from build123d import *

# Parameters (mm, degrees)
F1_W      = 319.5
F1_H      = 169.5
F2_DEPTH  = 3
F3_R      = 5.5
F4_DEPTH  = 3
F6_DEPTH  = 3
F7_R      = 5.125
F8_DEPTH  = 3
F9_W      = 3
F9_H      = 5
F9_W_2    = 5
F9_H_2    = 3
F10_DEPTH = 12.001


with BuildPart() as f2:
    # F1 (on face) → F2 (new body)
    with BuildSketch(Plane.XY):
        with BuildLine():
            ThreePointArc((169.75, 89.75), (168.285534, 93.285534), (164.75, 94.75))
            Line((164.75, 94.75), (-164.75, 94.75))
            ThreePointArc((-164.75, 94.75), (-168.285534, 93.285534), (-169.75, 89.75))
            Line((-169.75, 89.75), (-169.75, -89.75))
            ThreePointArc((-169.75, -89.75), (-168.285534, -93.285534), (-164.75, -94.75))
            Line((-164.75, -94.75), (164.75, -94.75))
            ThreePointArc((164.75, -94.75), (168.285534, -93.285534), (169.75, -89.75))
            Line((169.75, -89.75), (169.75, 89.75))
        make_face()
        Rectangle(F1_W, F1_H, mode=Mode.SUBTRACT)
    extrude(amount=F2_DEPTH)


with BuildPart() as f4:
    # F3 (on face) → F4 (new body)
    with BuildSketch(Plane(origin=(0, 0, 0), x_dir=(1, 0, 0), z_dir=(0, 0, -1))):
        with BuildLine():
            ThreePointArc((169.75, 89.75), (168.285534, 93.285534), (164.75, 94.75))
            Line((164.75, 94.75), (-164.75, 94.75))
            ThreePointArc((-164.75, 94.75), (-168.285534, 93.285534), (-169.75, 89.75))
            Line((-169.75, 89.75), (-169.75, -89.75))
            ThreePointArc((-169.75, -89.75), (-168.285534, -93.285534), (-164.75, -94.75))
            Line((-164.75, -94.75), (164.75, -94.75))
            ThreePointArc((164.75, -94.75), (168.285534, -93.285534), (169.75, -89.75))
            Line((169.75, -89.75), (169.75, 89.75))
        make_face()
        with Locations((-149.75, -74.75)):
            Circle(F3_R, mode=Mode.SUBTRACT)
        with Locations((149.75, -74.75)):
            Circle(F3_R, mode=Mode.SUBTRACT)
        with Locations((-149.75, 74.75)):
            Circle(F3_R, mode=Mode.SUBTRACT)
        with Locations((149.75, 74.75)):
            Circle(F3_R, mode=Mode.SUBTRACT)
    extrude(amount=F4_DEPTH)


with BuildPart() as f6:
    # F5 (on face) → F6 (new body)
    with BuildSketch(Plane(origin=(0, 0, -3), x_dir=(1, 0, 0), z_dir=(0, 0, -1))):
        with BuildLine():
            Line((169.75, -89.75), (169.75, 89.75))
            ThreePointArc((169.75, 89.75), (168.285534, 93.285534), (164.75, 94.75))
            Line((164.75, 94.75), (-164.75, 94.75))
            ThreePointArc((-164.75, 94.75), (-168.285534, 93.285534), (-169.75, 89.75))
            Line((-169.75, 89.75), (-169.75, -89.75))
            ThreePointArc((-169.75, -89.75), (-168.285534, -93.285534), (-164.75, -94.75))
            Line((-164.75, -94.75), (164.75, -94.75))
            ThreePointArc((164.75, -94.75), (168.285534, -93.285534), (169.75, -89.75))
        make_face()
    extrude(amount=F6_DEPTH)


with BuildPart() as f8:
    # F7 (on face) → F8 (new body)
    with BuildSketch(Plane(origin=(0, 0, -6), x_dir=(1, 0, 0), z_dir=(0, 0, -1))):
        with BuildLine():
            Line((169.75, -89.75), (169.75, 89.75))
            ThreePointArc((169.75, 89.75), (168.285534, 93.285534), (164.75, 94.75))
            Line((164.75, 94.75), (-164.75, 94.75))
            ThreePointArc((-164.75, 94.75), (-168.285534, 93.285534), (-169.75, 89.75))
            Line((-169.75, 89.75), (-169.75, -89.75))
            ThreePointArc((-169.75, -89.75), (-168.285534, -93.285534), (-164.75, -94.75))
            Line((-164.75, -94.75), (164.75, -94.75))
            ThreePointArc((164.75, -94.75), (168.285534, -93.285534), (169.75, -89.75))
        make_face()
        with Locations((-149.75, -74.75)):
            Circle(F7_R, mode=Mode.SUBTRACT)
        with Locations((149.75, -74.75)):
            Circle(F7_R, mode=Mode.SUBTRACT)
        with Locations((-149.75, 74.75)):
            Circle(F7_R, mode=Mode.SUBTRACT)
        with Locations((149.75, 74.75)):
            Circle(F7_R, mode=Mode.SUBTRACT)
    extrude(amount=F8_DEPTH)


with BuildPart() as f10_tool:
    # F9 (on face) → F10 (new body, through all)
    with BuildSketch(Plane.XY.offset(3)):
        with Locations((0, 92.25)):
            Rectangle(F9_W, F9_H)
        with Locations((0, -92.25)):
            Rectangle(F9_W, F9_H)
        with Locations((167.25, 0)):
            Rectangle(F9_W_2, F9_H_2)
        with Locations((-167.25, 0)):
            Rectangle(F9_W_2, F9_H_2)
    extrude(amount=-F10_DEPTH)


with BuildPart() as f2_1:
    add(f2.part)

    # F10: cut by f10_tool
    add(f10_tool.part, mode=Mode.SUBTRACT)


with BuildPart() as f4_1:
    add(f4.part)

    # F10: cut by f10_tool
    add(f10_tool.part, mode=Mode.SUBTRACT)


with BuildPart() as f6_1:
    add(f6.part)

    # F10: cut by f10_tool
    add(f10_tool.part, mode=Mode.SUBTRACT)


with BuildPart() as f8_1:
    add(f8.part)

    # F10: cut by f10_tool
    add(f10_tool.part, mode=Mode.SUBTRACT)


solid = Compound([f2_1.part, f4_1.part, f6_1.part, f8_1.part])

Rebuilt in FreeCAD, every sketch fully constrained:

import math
import FreeCAD as App
import Part
import Sketcher

V = App.Vector


def add_polygon(sketch, points):
    """Adds a closed chain of lines whose ends are joined by coincident constraints."""
    first, n = sketch.GeometryCount, len(points)
    for a, b in zip(points, points[1:] + points[:1]):
        sketch.addGeometry(Part.LineSegment(App.Vector(*a, 0), App.Vector(*b, 0)), False)
    for i in range(n):
        sketch.addConstraint(Sketcher.Constraint("Coincident", first + i, 2, first + (i + 1) % n, 1))

doc = App.newDocument("Part")
body = doc.addObject("PartDesign::Body", "Body")

sketch1 = body.newObject("Sketcher::SketchObject", "Sketch")
sketch1.AttachmentSupport = (doc.getObject("XY_Plane"), [""])
sketch1.MapMode = "FlatFace"
sketch1.addGeometry(Part.ArcOfCircle(Part.Circle(V(164.75, 89.75, 0), V(0, 0, 1), 5), math.radians(-0.000004), math.radians(90.000004)), False)
sketch1.addGeometry(Part.LineSegment(V(164.75, 94.75, 0), V(-164.75, 94.75, 0)), False)
sketch1.addGeometry(Part.ArcOfCircle(Part.Circle(V(-164.75, 89.75, 0), V(0, 0, 1), 5), math.radians(89.999996), math.radians(180.000004)), False)
sketch1.addGeometry(Part.LineSegment(V(-169.75, 89.75, 0), V(-169.75, -89.75, 0)), False)
sketch1.addGeometry(Part.ArcOfCircle(Part.Circle(V(-164.75, -89.75, 0), V(0, 0, 1), 5), math.radians(179.999996), math.radians(270.000004)), False)
sketch1.addGeometry(Part.LineSegment(V(-164.75, -94.75, 0), V(164.75, -94.75, 0)), False)
sketch1.addGeometry(Part.ArcOfCircle(Part.Circle(V(164.75, -89.75, 0), V(0, 0, 1), 5), math.radians(-90.000004), math.radians(0.000004)), False)
sketch1.addGeometry(Part.LineSegment(V(169.75, -89.75, 0), V(169.75, 89.75, 0)), False)
add_polygon(sketch1, [(159.75, -84.75), (-159.75, -84.75), (-159.75, 84.75), (159.75, 84.75)])
sketch1.addConstraint([
    Sketcher.Constraint("Tangent", 0, 2, 1, 1),
    Sketcher.Constraint("Tangent", 1, 2, 2, 1),
    Sketcher.Constraint("Tangent", 2, 2, 3, 1),
    Sketcher.Constraint("Tangent", 3, 2, 4, 1),
    Sketcher.Constraint("Tangent", 4, 2, 5, 1),
    Sketcher.Constraint("Tangent", 5, 2, 6, 1),
    Sketcher.Constraint("Tangent", 6, 2, 7, 1),
    Sketcher.Constraint("Tangent", 7, 2, 0, 1),
    Sketcher.Constraint("Horizontal", 1),
    Sketcher.Constraint("Vertical", 3),
    Sketcher.Constraint("Horizontal", 5),
    Sketcher.Constraint("Vertical", 7),
    Sketcher.Constraint("Horizontal", 8),
    Sketcher.Constraint("Vertical", 9),
    Sketcher.Constraint("Horizontal", 10),
    Sketcher.Constraint("Vertical", 11),
    Sketcher.Constraint("Equal", 0, 2),
    Sketcher.Constraint("Equal", 2, 4),
    Sketcher.Constraint("Equal", 4, 6),
    Sketcher.Constraint("Symmetric", 0, 3, 4, 3, -1, 1),
    Sketcher.Constraint("Symmetric", 8, 2, 10, 2, -1, 1),
    Sketcher.Constraint("Radius", 0, 5.0),
    Sketcher.Constraint("DistanceX", 1, 2, 1, 1, 329.5),
    Sketcher.Constraint("DistanceX", 8, 2, 8, 1, 319.5),
    Sketcher.Constraint("DistanceY", 3, 2, 3, 1, 179.5),
    Sketcher.Constraint("DistanceY", 9, 1, 9, 2, 169.5),
])
pad1 = body.newObject("PartDesign::Pad", "Pad")
pad1.Profile = sketch1
pad1.Length = 3
body2 = doc.addObject("PartDesign::Body", "Body001")

sketch2 = body2.newObject("Sketcher::SketchObject", "Sketch001")
sketch2.AttachmentSupport = (doc.getObject("XY_Plane001"), [""])
sketch2.MapMode = "FlatFace"
sketch2.addGeometry([
    Part.ArcOfCircle(Part.Circle(V(164.75, -89.75, 0), V(0, 0, 1), 5), math.radians(-90.000004), math.radians(0.000004)),
    Part.LineSegment(V(164.75, -94.75, 0), V(-164.75, -94.75, 0)),
    Part.ArcOfCircle(Part.Circle(V(-164.75, -89.75, 0), V(0, 0, 1), 5), math.radians(179.999996), math.radians(270.000004)),
    Part.LineSegment(V(-169.75, -89.75, 0), V(-169.75, 89.75, 0)),
    Part.ArcOfCircle(Part.Circle(V(-164.75, 89.75, 0), V(0, 0, 1), 5), math.radians(89.999996), math.radians(180.000004)),
    Part.LineSegment(V(-164.75, 94.75, 0), V(164.75, 94.75, 0)),
    Part.ArcOfCircle(Part.Circle(V(164.75, 89.75, 0), V(0, 0, 1), 5), math.radians(-0.000004), math.radians(90.000004)),
    Part.LineSegment(V(169.75, 89.75, 0), V(169.75, -89.75, 0)),
    Part.Circle(V(-149.75, 74.75, 0), V(0, 0, 1), 5.5),
    Part.Circle(V(149.75, 74.75, 0), V(0, 0, 1), 5.5),
    Part.Circle(V(-149.75, -74.75, 0), V(0, 0, 1), 5.5),
    Part.Circle(V(149.75, -74.75, 0), V(0, 0, 1), 5.5),
], False)
sketch2.addConstraint([
    Sketcher.Constraint("Tangent", 0, 1, 1, 1),
    Sketcher.Constraint("Tangent", 1, 2, 2, 2),
    Sketcher.Constraint("Tangent", 2, 1, 3, 1),
    Sketcher.Constraint("Tangent", 3, 2, 4, 2),
    Sketcher.Constraint("Tangent", 4, 1, 5, 1),
    Sketcher.Constraint("Tangent", 5, 2, 6, 2),
    Sketcher.Constraint("Tangent", 6, 1, 7, 1),
    Sketcher.Constraint("Tangent", 7, 2, 0, 2),
    Sketcher.Constraint("Horizontal", 1),
    Sketcher.Constraint("Vertical", 3),
    Sketcher.Constraint("Horizontal", 5),
    Sketcher.Constraint("Vertical", 7),
    Sketcher.Constraint("Equal", 0, 2),
    Sketcher.Constraint("Equal", 2, 4),
    Sketcher.Constraint("Equal", 4, 6),
    Sketcher.Constraint("Equal", 8, 9),
    Sketcher.Constraint("Equal", 9, 10),
    Sketcher.Constraint("Equal", 10, 11),
    Sketcher.Constraint("Symmetric", 0, 3, 4, 3, -1, 1),
    Sketcher.Constraint("Symmetric", 9, 3, 10, 3, -1, 1),
    Sketcher.Constraint("Symmetric", 8, 3, 11, 3, -1, 1),
    Sketcher.Constraint("Symmetric", 8, 3, 9, 3, -2),
    Sketcher.Constraint("Diameter", 8, 11.0),
    Sketcher.Constraint("Radius", 0, 5.0),
    Sketcher.Constraint("DistanceX", 1, 2, 1, 1, 329.5),
    Sketcher.Constraint("DistanceY", 3, 1, 3, 2, 179.5),
    Sketcher.Constraint("DistanceX", 4, 3, 8, 3, 15.0),
    Sketcher.Constraint("DistanceY", 8, 3, 4, 3, 15.0),
])
pad2 = body2.newObject("PartDesign::Pad", "Pad001")
pad2.Profile = sketch2
pad2.Length = 3
pad2.Reversed = True
body3 = doc.addObject("PartDesign::Body", "Body002")

sketch3 = body3.newObject("Sketcher::SketchObject", "Sketch002")
sketch3.AttachmentSupport = (doc.getObject("XY_Plane002"), [""])
sketch3.MapMode = "FlatFace"
sketch3.AttachmentOffset = App.Placement(V(0, 0, -3), App.Rotation())
sketch3.addGeometry([
    Part.LineSegment(V(169.75, 89.75, 0), V(169.75, -89.75, 0)),
    Part.ArcOfCircle(Part.Circle(V(164.75, -89.75, 0), V(0, 0, 1), 5), math.radians(-90.000004), math.radians(0.000004)),
    Part.LineSegment(V(164.75, -94.75, 0), V(-164.75, -94.75, 0)),
    Part.ArcOfCircle(Part.Circle(V(-164.75, -89.75, 0), V(0, 0, 1), 5), math.radians(179.999996), math.radians(270.000004)),
    Part.LineSegment(V(-169.75, -89.75, 0), V(-169.75, 89.75, 0)),
    Part.ArcOfCircle(Part.Circle(V(-164.75, 89.75, 0), V(0, 0, 1), 5), math.radians(89.999996), math.radians(180.000004)),
    Part.LineSegment(V(-164.75, 94.75, 0), V(164.75, 94.75, 0)),
    Part.ArcOfCircle(Part.Circle(V(164.75, 89.75, 0), V(0, 0, 1), 5), math.radians(-0.000004), math.radians(90.000004)),
], False)
sketch3.addConstraint([
    Sketcher.Constraint("Tangent", 0, 2, 1, 2),
    Sketcher.Constraint("Tangent", 1, 1, 2, 1),
    Sketcher.Constraint("Tangent", 2, 2, 3, 2),
    Sketcher.Constraint("Tangent", 3, 1, 4, 1),
    Sketcher.Constraint("Tangent", 4, 2, 5, 2),
    Sketcher.Constraint("Tangent", 5, 1, 6, 1),
    Sketcher.Constraint("Tangent", 6, 2, 7, 2),
    Sketcher.Constraint("Tangent", 7, 1, 0, 1),
    Sketcher.Constraint("Vertical", 0),
    Sketcher.Constraint("Horizontal", 2),
    Sketcher.Constraint("Vertical", 4),
    Sketcher.Constraint("Horizontal", 6),
    Sketcher.Constraint("Equal", 1, 3),
    Sketcher.Constraint("Equal", 3, 5),
    Sketcher.Constraint("Equal", 5, 7),
    Sketcher.Constraint("Symmetric", 1, 3, 5, 3, -1, 1),
    Sketcher.Constraint("Radius", 1, 5.0),
    Sketcher.Constraint("DistanceX", 2, 2, 2, 1, 329.5),
    Sketcher.Constraint("DistanceY", 0, 2, 0, 1, 179.5),
])
pad3 = body3.newObject("PartDesign::Pad", "Pad002")
pad3.Profile = sketch3
pad3.Length = 3
pad3.Reversed = True
body4 = doc.addObject("PartDesign::Body", "Body003")

sketch4 = body4.newObject("Sketcher::SketchObject", "Sketch003")
sketch4.AttachmentSupport = (doc.getObject("XY_Plane003"), [""])
sketch4.MapMode = "FlatFace"
sketch4.AttachmentOffset = App.Placement(V(0, 0, -6), App.Rotation())
sketch4.addGeometry([
    Part.LineSegment(V(169.75, 89.75, 0), V(169.75, -89.75, 0)),
    Part.ArcOfCircle(Part.Circle(V(164.75, -89.75, 0), V(0, 0, 1), 5), math.radians(-90.000004), math.radians(0.000004)),
    Part.LineSegment(V(164.75, -94.75, 0), V(-164.75, -94.75, 0)),
    Part.ArcOfCircle(Part.Circle(V(-164.75, -89.75, 0), V(0, 0, 1), 5), math.radians(179.999996), math.radians(270.000004)),
    Part.LineSegment(V(-169.75, -89.75, 0), V(-169.75, 89.75, 0)),
    Part.ArcOfCircle(Part.Circle(V(-164.75, 89.75, 0), V(0, 0, 1), 5), math.radians(89.999996), math.radians(180.000004)),
    Part.LineSegment(V(-164.75, 94.75, 0), V(164.75, 94.75, 0)),
    Part.ArcOfCircle(Part.Circle(V(164.75, 89.75, 0), V(0, 0, 1), 5), math.radians(-0.000004), math.radians(90.000004)),
    Part.Circle(V(-149.75, 74.75, 0), V(0, 0, 1), 5.125),
    Part.Circle(V(149.75, 74.75, 0), V(0, 0, 1), 5.125),
    Part.Circle(V(-149.75, -74.75, 0), V(0, 0, 1), 5.125),
    Part.Circle(V(149.75, -74.75, 0), V(0, 0, 1), 5.125),
], False)
sketch4.addConstraint([
    Sketcher.Constraint("Tangent", 0, 2, 1, 2),
    Sketcher.Constraint("Tangent", 1, 1, 2, 1),
    Sketcher.Constraint("Tangent", 2, 2, 3, 2),
    Sketcher.Constraint("Tangent", 3, 1, 4, 1),
    Sketcher.Constraint("Tangent", 4, 2, 5, 2),
    Sketcher.Constraint("Tangent", 5, 1, 6, 1),
    Sketcher.Constraint("Tangent", 6, 2, 7, 2),
    Sketcher.Constraint("Tangent", 7, 1, 0, 1),
    Sketcher.Constraint("Vertical", 0),
    Sketcher.Constraint("Horizontal", 2),
    Sketcher.Constraint("Vertical", 4),
    Sketcher.Constraint("Horizontal", 6),
    Sketcher.Constraint("Equal", 1, 3),
    Sketcher.Constraint("Equal", 3, 5),
    Sketcher.Constraint("Equal", 5, 7),
    Sketcher.Constraint("Equal", 8, 9),
    Sketcher.Constraint("Equal", 9, 10),
    Sketcher.Constraint("Equal", 10, 11),
    Sketcher.Constraint("Symmetric", 1, 3, 5, 3, -1, 1),
    Sketcher.Constraint("Symmetric", 9, 3, 10, 3, -1, 1),
    Sketcher.Constraint("Symmetric", 8, 3, 11, 3, -1, 1),
    Sketcher.Constraint("Symmetric", 8, 3, 9, 3, -2),
    Sketcher.Constraint("Radius", 1, 5.0),
    Sketcher.Constraint("Diameter", 8, 10.25),
    Sketcher.Constraint("DistanceX", 2, 2, 2, 1, 329.5),
    Sketcher.Constraint("DistanceY", 0, 2, 0, 1, 179.5),
    Sketcher.Constraint("DistanceX", 5, 3, 8, 3, 15.0),
    Sketcher.Constraint("DistanceY", 8, 3, 5, 3, 15.0),
])
pad4 = body4.newObject("PartDesign::Pad", "Pad003")
pad4.Profile = sketch4
pad4.Length = 3
pad4.Reversed = True
body5 = doc.addObject("PartDesign::Body", "Body004")
body5.AllowCompound = True

sketch5 = body5.newObject("Sketcher::SketchObject", "Sketch004")
sketch5.AttachmentSupport = (doc.getObject("XY_Plane004"), [""])
sketch5.MapMode = "FlatFace"
sketch5.AttachmentOffset = App.Placement(V(0, 0, 3), App.Rotation())
add_polygon(sketch5, [(-1.5, 94.75), (-1.5, 89.75), (1.5, 89.75), (1.5, 94.75)])
add_polygon(sketch5, [(-1.5, -89.75), (-1.5, -94.75), (1.5, -94.75), (1.5, -89.75)])
add_polygon(sketch5, [(164.75, 1.5), (164.75, -1.5), (169.75, -1.5), (169.75, 1.5)])
add_polygon(sketch5, [(-169.75, 1.5), (-169.75, -1.5), (-164.75, -1.5), (-164.75, 1.5)])
sketch5.addConstraint([
    Sketcher.Constraint("Vertical", 0),
    Sketcher.Constraint("Horizontal", 1),
    Sketcher.Constraint("Vertical", 2),
    Sketcher.Constraint("Horizontal", 3),
    Sketcher.Constraint("Vertical", 4),
    Sketcher.Constraint("Horizontal", 5),
    Sketcher.Constraint("Vertical", 6),
    Sketcher.Constraint("Horizontal", 7),
    Sketcher.Constraint("Vertical", 8),
    Sketcher.Constraint("Horizontal", 9),
    Sketcher.Constraint("Vertical", 10),
    Sketcher.Constraint("Horizontal", 11),
    Sketcher.Constraint("Vertical", 12),
    Sketcher.Constraint("Horizontal", 13),
    Sketcher.Constraint("Vertical", 14),
    Sketcher.Constraint("Horizontal", 15),
    Sketcher.Constraint("Symmetric", 2, 2, 4, 2, -1, 1),
    Sketcher.Constraint("Symmetric", 0, 2, 6, 2, -1, 1),
    Sketcher.Constraint("Symmetric", 10, 2, 12, 2, -1, 1),
    Sketcher.Constraint("Symmetric", 8, 2, 14, 2, -1, 1),
    Sketcher.Constraint("Horizontal", 9, 2, 12, 2),
    Sketcher.Constraint("Vertical", 3, 2, 4, 2),
    Sketcher.Constraint("Equal", 15, 0),
    Sketcher.Constraint("Equal", 7, 8),
    Sketcher.Constraint("DistanceX", 1, 1, 1, 2, 3.0),
    Sketcher.Constraint("DistanceX", 9, 1, 9, 2, 5.0),
    Sketcher.Constraint("DistanceY", 4, 2, 0, 2, 184.5),
    Sketcher.Constraint("DistanceX", -1, 1, 8, 2, 164.75),
])
pad5 = body5.newObject("PartDesign::Pad", "Pad004")
pad5.Profile = sketch5
pad5.Length = 12.001
pad5.Reversed = True
doc.recompute()

body6 = doc.addObject("PartDesign::Body", "Body005")
body6.BaseFeature = body5
boolean = body.newObject("PartDesign::Boolean", "Boolean")
boolean.Type = "Cut"
boolean.addObjects([body6])
doc.recompute()

body7 = doc.addObject("PartDesign::Body", "Body006")
body7.BaseFeature = body5
boolean2 = body2.newObject("PartDesign::Boolean", "Boolean001")
boolean2.Type = "Cut"
boolean2.addObjects([body7])
doc.recompute()

body8 = doc.addObject("PartDesign::Body", "Body007")
body8.BaseFeature = body5
boolean3 = body3.newObject("PartDesign::Boolean", "Boolean002")
boolean3.Type = "Cut"
boolean3.addObjects([body8])
doc.recompute()

boolean4 = body4.newObject("PartDesign::Boolean", "Boolean003")
boolean4.Type = "Cut"
boolean4.addObjects([body5])

doc.recompute()
